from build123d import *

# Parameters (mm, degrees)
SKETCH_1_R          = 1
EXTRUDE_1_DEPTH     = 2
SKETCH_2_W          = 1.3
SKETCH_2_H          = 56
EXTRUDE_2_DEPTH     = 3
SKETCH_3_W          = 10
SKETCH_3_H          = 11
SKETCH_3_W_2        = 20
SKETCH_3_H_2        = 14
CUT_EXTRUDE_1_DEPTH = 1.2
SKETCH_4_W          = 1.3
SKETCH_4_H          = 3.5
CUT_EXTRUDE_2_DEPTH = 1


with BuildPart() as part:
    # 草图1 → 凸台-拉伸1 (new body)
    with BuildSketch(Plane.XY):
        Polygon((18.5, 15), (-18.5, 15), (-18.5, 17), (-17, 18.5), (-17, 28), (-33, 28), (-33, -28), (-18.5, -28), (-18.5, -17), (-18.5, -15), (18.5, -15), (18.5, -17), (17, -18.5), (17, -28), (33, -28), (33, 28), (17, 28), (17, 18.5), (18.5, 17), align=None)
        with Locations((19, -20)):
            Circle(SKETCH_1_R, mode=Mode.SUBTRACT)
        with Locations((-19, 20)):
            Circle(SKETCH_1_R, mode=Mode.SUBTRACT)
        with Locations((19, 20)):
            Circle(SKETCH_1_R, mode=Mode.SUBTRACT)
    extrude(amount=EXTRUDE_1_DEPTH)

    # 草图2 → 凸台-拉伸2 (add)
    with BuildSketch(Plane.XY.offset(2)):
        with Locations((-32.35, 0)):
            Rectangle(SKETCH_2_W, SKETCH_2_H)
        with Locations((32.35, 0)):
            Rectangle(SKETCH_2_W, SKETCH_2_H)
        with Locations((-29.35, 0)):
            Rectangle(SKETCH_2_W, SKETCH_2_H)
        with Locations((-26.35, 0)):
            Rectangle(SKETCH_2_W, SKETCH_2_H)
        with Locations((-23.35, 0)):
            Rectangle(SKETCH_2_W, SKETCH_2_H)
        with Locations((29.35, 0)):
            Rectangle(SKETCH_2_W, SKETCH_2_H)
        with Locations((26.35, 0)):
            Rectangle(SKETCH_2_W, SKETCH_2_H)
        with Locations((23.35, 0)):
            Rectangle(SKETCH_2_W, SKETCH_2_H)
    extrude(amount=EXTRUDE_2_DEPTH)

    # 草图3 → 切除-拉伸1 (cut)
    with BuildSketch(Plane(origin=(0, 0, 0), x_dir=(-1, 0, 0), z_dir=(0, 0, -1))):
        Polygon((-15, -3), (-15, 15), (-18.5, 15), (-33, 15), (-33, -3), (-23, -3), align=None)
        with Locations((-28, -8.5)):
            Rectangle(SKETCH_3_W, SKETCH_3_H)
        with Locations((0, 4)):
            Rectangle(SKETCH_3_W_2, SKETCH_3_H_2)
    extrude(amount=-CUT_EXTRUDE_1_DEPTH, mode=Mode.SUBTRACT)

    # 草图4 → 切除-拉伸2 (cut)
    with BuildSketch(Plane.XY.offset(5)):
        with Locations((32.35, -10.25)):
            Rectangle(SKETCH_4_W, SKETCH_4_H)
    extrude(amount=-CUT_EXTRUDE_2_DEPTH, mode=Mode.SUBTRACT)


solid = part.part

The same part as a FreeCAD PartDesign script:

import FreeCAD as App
import Part
import Sketcher


def add_polygon(sketch, points):
    """Adds a closed chain of lines whose ends are joined by coincident constraints."""
    first, n = sketch.GeometryCount, len(points)
    for a, b in zip(points, points[1:] + points[:1]):
        sketch.addGeometry(Part.LineSegment(App.Vector(*a, 0), App.Vector(*b, 0)), False)
    for i in range(n):
        sketch.addConstraint(Sketcher.Constraint("Coincident", first + i, 2, first + (i + 1) % n, 1))

doc = App.newDocument("Part")
body = doc.addObject("PartDesign::Body", "Body")

sketch1 = body.newObject("Sketcher::SketchObject", "Sketch")
sketch1.AttachmentSupport = (doc.getObject("XY_Plane"), [""])
sketch1.MapMode = "FlatFace"
add_polygon(sketch1, [(18.5, 15), (-18.5, 15), (-18.5, 17), (-17, 18.5), (-17, 28), (-33, 28), (-33, -28), (-18.5, -28), (-18.5, -15), (18.5, -15), (18.5, -17), (17, -18.5), (17, -28), (33, -28), (33, 28), (17, 28), (17, 18.5), (18.5, 17)])
sketch1.addGeometry(Part.Circle(App.Vector(19, -20, 0), App.Vector(0, 0, 1), 1), False)
sketch1.addGeometry(Part.Circle(App.Vector(-19, 20, 0), App.Vector(0, 0, 1), 1), False)
sketch1.addGeometry(Part.Circle(App.Vector(19, 20, 0), App.Vector(0, 0, 1), 1), False)
sketch1.addConstraint(Sketcher.Constraint("Horizontal", 0))
sketch1.addConstraint(Sketcher.Constraint("Vertical", 1))
sketch1.addConstraint(Sketcher.Constraint("Vertical", 3))
sketch1.addConstraint(Sketcher.Constraint("Horizontal", 4))
sketch1.addConstraint(Sketcher.Constraint("Vertical", 5))
sketch1.addConstraint(Sketcher.Constraint("Horizontal", 6))
sketch1.addConstraint(Sketcher.Constraint("Vertical", 7))
sketch1.addConstraint(Sketcher.Constraint("Horizontal", 8))
sketch1.addConstraint(Sketcher.Constraint("Vertical", 9))
sketch1.addConstraint(Sketcher.Constraint("Vertical", 11))
sketch1.addConstraint(Sketcher.Constraint("Horizontal", 12))
sketch1.addConstraint(Sketcher.Constraint("Vertical", 13))
sketch1.addConstraint(Sketcher.Constraint("Horizontal", 14))
sketch1.addConstraint(Sketcher.Constraint("Vertical", 15))
sketch1.addConstraint(Sketcher.Constraint("Vertical", 17))
sketch1.addConstraint(Sketcher.Constraint("Equal", 18, 19))
sketch1.addConstraint(Sketcher.Constraint("Equal", 19, 20))
sketch1.addConstraint(Sketcher.Constraint("Symmetric", 18, 3, 19, 3, -1, 1))
sketch1.addConstraint(Sketcher.Constraint("Symmetric", 0, 2, 8, 2, -1, 1))
sketch1.addConstraint(Sketcher.Constraint("Symmetric", 2, 2, 10, 2, -1, 1))
sketch1.addConstraint(Sketcher.Constraint("Symmetric", 4, 2, 12, 2, -1, 1))
sketch1.addConstraint(Sketcher.Constraint("Symmetric", 19, 3, 20, 3, -2))
sketch1.addConstraint(Sketcher.Constraint("Symmetric", 3, 2, 14, 2, -2))
sketch1.addConstraint(Sketcher.Constraint("Symmetric", 1, 2, 16, 2, -2))
sketch1.addConstraint(Sketcher.Constraint("Parallel", 2, 10))
sketch1.addConstraint(Sketcher.Constraint("Perpendicular", 10, 16))
sketch1.addConstraint(Sketcher.Constraint("Horizontal", 6, 2, 11, 2))
sketch1.addConstraint(Sketcher.Constraint("Horizontal", 2, 2, 15, 2))
sketch1.addConstraint(Sketcher.Constraint("Vertical", 1, 2, 6, 2))
sketch1.addConstraint(Sketcher.Constraint("Diameter", 18, 2.0))
sketch1.addConstraint(Sketcher.Constraint("DistanceX", 0, 2, 0, 1, 37.0))
sketch1.addConstraint(Sketcher.Constraint("DistanceX", 4, 2, 4, 1, 16.0))
sketch1.addConstraint(Sketcher.Constraint("DistanceY", 1, 1, 1, 2, 2.0))
sketch1.addConstraint(Sketcher.Constraint("DistanceY", 5, 2, 5, 1, 56.0))
sketch1.addConstraint(Sketcher.Constraint("DistanceY", 7, 1, 7, 2, 13.0))
sketch1.addConstraint(Sketcher.Constraint("DistanceX", 6, 1, 6, 2, 14.5))
sketch1.addConstraint(Sketcher.Constraint("DistanceX", -1, 1, 18, 3, 19.0))
sketch1.addConstraint(Sketcher.Constraint("DistanceY", 18, 3, -1, 1, 20.0))
pad1 = body.newObject("PartDesign::Pad", "Pad")
pad1.Profile = sketch1
pad1.Length = 2

sketch2 = body.newObject("Sketcher::SketchObject", "Sketch001")
sketch2.AttachmentSupport = (doc.getObject("XY_Plane"), [""])
sketch2.MapMode = "FlatFace"
sketch2.AttachmentOffset = App.Placement(App.Vector(0, 0, 2), App.Rotation())
add_polygon(sketch2, [(-33, 28), (-33, -28), (-31.7, -28), (-31.7, 28)])
add_polygon(sketch2, [(31.7, 28), (31.7, -28), (33, -28), (33, 28)])
add_polygon(sketch2, [(-30, 28), (-30, -28), (-28.7, -28), (-28.7, 28)])
add_polygon(sketch2, [(-27, 28), (-27, -28), (-25.7, -28), (-25.7, 28)])
add_polygon(sketch2, [(-24, 28), (-24, -28), (-22.7, -28), (-22.7, 28)])
add_polygon(sketch2, [(28.7, 28), (28.7, -28), (30, -28), (30, 28)])
add_polygon(sketch2, [(25.7, 28), (25.7, -28), (27, -28), (27, 28)])
add_polygon(sketch2, [(22.7, 28), (22.7, -28), (24, -28), (24, 28)])
sketch2.addConstraint(Sketcher.Constraint("Vertical", 0))
sketch2.addConstraint(Sketcher.Constraint("Horizontal", 1))
sketch2.addConstraint(Sketcher.Constraint("Vertical", 2))
sketch2.addConstraint(Sketcher.Constraint("Horizontal", 3))
sketch2.addConstraint(Sketcher.Constraint("Vertical", 4))
sketch2.addConstraint(Sketcher.Constraint("Horizontal", 5))
sketch2.addConstraint(Sketcher.Constraint("Vertical", 6))
sketch2.addConstraint(Sketcher.Constraint("Horizontal", 7))
sketch2.addConstraint(Sketcher.Constraint("Vertical", 8))
sketch2.addConstraint(Sketcher.Constraint("Horizontal", 9))
sketch2.addConstraint(Sketcher.Constraint("Vertical", 10))
sketch2.addConstraint(Sketcher.Constraint("Horizontal", 11))
sketch2.addConstraint(Sketcher.Constraint("Vertical", 12))
sketch2.addConstraint(Sketcher.Constraint("Horizontal", 13))
sketch2.addConstraint(Sketcher.Constraint("Vertical", 14))
sketch2.addConstraint(Sketcher.Constraint("Horizontal", 15))
sketch2.addConstraint(Sketcher.Constraint("Vertical", 16))
sketch2.addConstraint(Sketcher.Constraint("Horizontal", 17))
sketch2.addConstraint(Sketcher.Constraint("Vertical", 18))
sketch2.addConstraint(Sketcher.Constraint("Horizontal", 19))
sketch2.addConstraint(Sketcher.Constraint("Vertical", 20))
sketch2.addConstraint(Sketcher.Constraint("Horizontal", 21))
sketch2.addConstraint(Sketcher.Constraint("Vertical", 22))
sketch2.addConstraint(Sketcher.Constraint("Horizontal", 23))
sketch2.addConstraint(Sketcher.Constraint("Vertical", 24))
sketch2.addConstraint(Sketcher.Constraint("Horizontal", 25))
sketch2.addConstraint(Sketcher.Constraint("Vertical", 26))
sketch2.addConstraint(Sketcher.Constraint("Horizontal", 27))
sketch2.addConstraint(Sketcher.Constraint("Vertical", 28))
sketch2.addConstraint(Sketcher.Constraint("Horizontal", 29))
sketch2.addConstraint(Sketcher.Constraint("Vertical", 30))
sketch2.addConstraint(Sketcher.Constraint("Horizontal", 31))
sketch2.addConstraint(Sketcher.Constraint("Symmetric", 2, 2, 4, 2, -1, 1))
sketch2.addConstraint(Sketcher.Constraint("Symmetric", 0, 2, 6, 2, -1, 1))
sketch2.addConstraint(Sketcher.Constraint("Symmetric", 10, 2, 20, 2, -1, 1))
sketch2.addConstraint(Sketcher.Constraint("Symmetric", 8, 2, 22, 2, -1, 1))
sketch2.addConstraint(Sketcher.Constraint("Symmetric", 14, 2, 24, 2, -1, 1))
sketch2.addConstraint(Sketcher.Constraint("Symmetric", 12, 2, 26, 2, -1, 1))
sketch2.addConstraint(Sketcher.Constraint("Symmetric", 18, 2, 28, 2, -1, 1))
sketch2.addConstraint(Sketcher.Constraint("Symmetric", 16, 2, 30, 2, -1, 1))
sketch2.addConstraint(Sketcher.Constraint("Horizontal", 1, 2, 4, 2))
sketch2.addConstraint(Sketcher.Constraint("Horizontal", 5, 2, 8, 2))
sketch2.addConstraint(Sketcher.Constraint("Horizontal", 7, 2, 10, 2))
sketch2.addConstraint(Sketcher.Constraint("Horizontal", 9, 2, 12, 2))
sketch2.addConstraint(Sketcher.Constraint("Horizontal", 11, 2, 14, 2))
sketch2.addConstraint(Sketcher.Constraint("Horizontal", 13, 2, 16, 2))
sketch2.addConstraint(Sketcher.Constraint("Horizontal", 15, 2, 18, 2))
sketch2.addConstraint(Sketcher.Constraint("Equal", 7, 9))
sketch2.addConstraint(Sketcher.Constraint("Equal", 11, 13))
sketch2.addConstraint(Sketcher.Constraint("Equal", 15, 17))
sketch2.addConstraint(Sketcher.Constraint("DistanceY", 0, 2, 0, 1, 56.0))
sketch2.addConstraint(Sketcher.Constraint("DistanceX", 1, 1, 1, 2, 1.3))
sketch2.addConstraint(Sketcher.Constraint("DistanceX", 0, 2, -1, 1, 33.0))
sketch2.addConstraint(Sketcher.Constraint("DistanceX", 8, 2, -1, 1, 30.0))
sketch2.addConstraint(Sketcher.Constraint("DistanceX", 12, 2, -1, 1, 27.0))
sketch2.addConstraint(Sketcher.Constraint("DistanceX", 16, 2, -1, 1, 24.0))
pad2 = body.newObject("PartDesign::Pad", "Pad001")
pad2.Profile = sketch2
pad2.Length = 3

sketch3 = body.newObject("Sketcher::SketchObject", "Sketch002")
sketch3.AttachmentSupport = (doc.getObject("XY_Plane"), [""])
sketch3.MapMode = "FlatFace"
add_polygon(sketch3, [(15, -3), (15, 15), (33, 15), (33, -14), (23, -14), (23, -3)])
add_polygon(sketch3, [(10, 11), (10, -3), (-10, -3), (-10, 11)])
sketch3.addConstraint(Sketcher.Constraint("Vertical", 0))
sketch3.addConstraint(Sketcher.Constraint("Horizontal", 1))
sketch3.addConstraint(Sketcher.Constraint("Vertical", 2))
sketch3.addConstraint(Sketcher.Constraint("Horizontal", 3))
sketch3.addConstraint(Sketcher.Constraint("Vertical", 4))
sketch3.addConstraint(Sketcher.Constraint("Horizontal", 5))
sketch3.addConstraint(Sketcher.Constraint("Vertical", 6))
sketch3.addConstraint(Sketcher.Constraint("Horizontal", 7))
sketch3.addConstraint(Sketcher.Constraint("Vertical", 8))
sketch3.addConstraint(Sketcher.Constraint("Horizontal", 9))
sketch3.addConstraint(Sketcher.Constraint("Horizontal", 5, 2, 6, 2))
sketch3.addConstraint(Sketcher.Constraint("Equal", 1, 0))
sketch3.addConstraint(Sketcher.Constraint("DistanceX", 1, 1, 1, 2, 18.0))
sketch3.addConstraint(Sketcher.Constraint("DistanceX", 3, 2, 3, 1, 10.0))
sketch3.addConstraint(Sketcher.Constraint("DistanceX", 7, 2, 7, 1, 20.0))
sketch3.addConstraint(Sketcher.Constraint("DistanceY", 2, 2, 2, 1, 29.0))
sketch3.addConstraint(Sketcher.Constraint("DistanceY", 6, 2, 6, 1, 14.0))
sketch3.addConstraint(Sketcher.Constraint("DistanceX", -1, 1, 0, 2, 15.0))
sketch3.addConstraint(Sketcher.Constraint("DistanceY", -1, 1, 0, 2, 15.0))
sketch3.addConstraint(Sketcher.Constraint("DistanceX", -1, 1, 6, 2, 10.0))
pocket1 = body.newObject("PartDesign::Pocket", "Pocket")
pocket1.Profile = sketch3
pocket1.Length = 1.2
pocket1.Reversed = True

sketch4 = body.newObject("Sketcher::SketchObject", "Sketch003")
sketch4.AttachmentSupport = (doc.getObject("XY_Plane"), [""])
sketch4.MapMode = "FlatFace"
sketch4.AttachmentOffset = App.Placement(App.Vector(0, 0, 5), App.Rotation())
add_polygon(sketch4, [(31.7, -8.5), (31.7, -12), (33, -12), (33, -8.5)])
sketch4.addConstraint(Sketcher.Constraint("Vertical", 0))
sketch4.addConstraint(Sketcher.Constraint("Horizontal", 1))
sketch4.addConstraint(Sketcher.Constraint("Vertical", 2))
sketch4.addConstraint(Sketcher.Constraint("Horizontal", 3))
sketch4.addConstraint(Sketcher.Constraint("DistanceX", 1, 1, 1, 2, 1.3))
sketch4.addConstraint(Sketcher.Constraint("DistanceY", 0, 2, 0, 1, 3.5))
sketch4.addConstraint(Sketcher.Constraint("DistanceY", 0, 2, -1, 1, 12.0))
sketch4.addConstraint(Sketcher.Constraint("DistanceX", -1, 1, 1, 2, 33.0))
pocket2 = body.newObject("PartDesign::Pocket", "Pocket001")
pocket2.Profile = sketch4
pocket2.Length = 1

doc.recompute()
